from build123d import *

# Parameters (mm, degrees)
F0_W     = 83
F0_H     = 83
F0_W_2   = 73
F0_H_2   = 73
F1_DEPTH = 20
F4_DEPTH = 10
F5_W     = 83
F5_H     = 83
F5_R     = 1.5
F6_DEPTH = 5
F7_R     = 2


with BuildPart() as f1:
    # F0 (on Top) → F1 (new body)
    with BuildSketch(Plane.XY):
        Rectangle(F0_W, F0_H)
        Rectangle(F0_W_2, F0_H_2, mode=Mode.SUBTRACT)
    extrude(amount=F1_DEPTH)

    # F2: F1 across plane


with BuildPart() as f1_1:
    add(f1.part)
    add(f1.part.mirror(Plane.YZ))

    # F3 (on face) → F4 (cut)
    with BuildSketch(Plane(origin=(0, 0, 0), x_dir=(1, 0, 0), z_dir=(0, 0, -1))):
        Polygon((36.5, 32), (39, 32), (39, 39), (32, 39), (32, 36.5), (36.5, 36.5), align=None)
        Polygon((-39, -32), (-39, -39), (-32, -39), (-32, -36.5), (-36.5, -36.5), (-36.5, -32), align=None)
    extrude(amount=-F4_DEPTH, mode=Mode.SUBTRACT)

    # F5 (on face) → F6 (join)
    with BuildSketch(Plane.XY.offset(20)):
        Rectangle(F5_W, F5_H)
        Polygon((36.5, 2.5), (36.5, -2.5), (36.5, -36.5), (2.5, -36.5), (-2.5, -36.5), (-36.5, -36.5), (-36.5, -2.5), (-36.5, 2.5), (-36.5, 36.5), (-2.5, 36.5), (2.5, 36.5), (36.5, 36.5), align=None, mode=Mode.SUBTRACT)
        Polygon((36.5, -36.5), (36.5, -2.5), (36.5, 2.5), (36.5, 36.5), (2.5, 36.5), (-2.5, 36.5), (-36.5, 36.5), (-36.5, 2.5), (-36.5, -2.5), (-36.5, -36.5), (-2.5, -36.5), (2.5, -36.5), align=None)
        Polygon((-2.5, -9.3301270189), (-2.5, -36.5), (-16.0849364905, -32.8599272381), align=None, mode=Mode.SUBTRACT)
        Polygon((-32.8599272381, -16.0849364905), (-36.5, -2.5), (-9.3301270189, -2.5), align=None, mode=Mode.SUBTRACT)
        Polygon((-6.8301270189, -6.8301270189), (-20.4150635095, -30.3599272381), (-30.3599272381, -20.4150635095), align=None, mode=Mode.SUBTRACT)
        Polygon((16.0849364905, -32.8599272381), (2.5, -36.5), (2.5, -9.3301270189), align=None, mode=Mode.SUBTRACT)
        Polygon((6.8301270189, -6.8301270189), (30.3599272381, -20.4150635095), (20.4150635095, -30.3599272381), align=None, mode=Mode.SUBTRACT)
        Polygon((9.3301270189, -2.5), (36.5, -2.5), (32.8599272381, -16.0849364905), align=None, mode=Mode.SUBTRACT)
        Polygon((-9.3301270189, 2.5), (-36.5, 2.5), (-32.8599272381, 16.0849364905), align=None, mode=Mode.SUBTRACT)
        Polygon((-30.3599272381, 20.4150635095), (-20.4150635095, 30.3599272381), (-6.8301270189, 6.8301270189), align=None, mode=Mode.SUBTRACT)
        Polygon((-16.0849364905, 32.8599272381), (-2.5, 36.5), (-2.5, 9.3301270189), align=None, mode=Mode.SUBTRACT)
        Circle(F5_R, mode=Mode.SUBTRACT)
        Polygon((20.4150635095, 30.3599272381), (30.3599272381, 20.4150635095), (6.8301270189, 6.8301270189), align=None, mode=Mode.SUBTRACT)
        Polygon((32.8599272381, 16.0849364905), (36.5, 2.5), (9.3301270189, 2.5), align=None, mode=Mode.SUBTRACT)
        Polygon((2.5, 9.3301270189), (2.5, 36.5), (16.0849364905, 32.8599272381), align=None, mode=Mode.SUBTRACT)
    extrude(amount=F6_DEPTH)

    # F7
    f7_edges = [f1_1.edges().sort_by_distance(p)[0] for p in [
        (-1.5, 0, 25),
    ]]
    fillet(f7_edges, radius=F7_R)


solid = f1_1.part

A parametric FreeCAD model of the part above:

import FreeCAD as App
import Part
import Sketcher
from FreeCAD import Vector
Q = App.Units.Quantity


def edges_at(feature, points):
    """Names of the edges that pass closest to the given points."""
    edges = feature.Shape.Edges
    near = lambda p: min(range(len(edges)), key=lambda i: edges[i].distToShape(Part.Vertex(*p))[0])
    return sorted({f"Edge{near(p) + 1}" for p in points})

doc = App.newDocument("Part")
body = doc.addObject("PartDesign::Body", "Body")

# Sketch on XY plane
sketch1 = body.newObject("Sketcher::SketchObject", "Sketch")
sketch1.AttachmentSupport = (doc.getObject("XY_Plane"), [""])
sketch1.MapMode = "FlatFace"
sketch1.addGeometry([
    Part.LineSegment(Vector(-41.5, 41.5, 0), Vector(-41.5, -41.5, 0)),  # 0
    Part.LineSegment(Vector(-41.5, -41.5, 0), Vector(41.5, -41.5, 0)),  # 1
    Part.LineSegment(Vector(41.5, -41.5, 0), Vector(41.5, 41.5, 0)),  # 2
    Part.LineSegment(Vector(41.5, 41.5, 0), Vector(-41.5, 41.5, 0)),  # 3
    Part.LineSegment(Vector(36.5, -36.5, 0), Vector(-36.5, -36.5, 0)),  # 4
    Part.LineSegment(Vector(-36.5, -36.5, 0), Vector(-36.5, 36.5, 0)),  # 5
    Part.LineSegment(Vector(-36.5, 36.5, 0), Vector(36.5, 36.5, 0)),  # 6
    Part.LineSegment(Vector(36.5, 36.5, 0), Vector(36.5, -36.5, 0)),  # 7
], False)
sketch1.addConstraint([
    Sketcher.Constraint("Coincident", 0, 2, 1, 1),
    Sketcher.Constraint("Coincident", 1, 2, 2, 1),
    Sketcher.Constraint("Coincident", 2, 2, 3, 1),
    Sketcher.Constraint("Coincident", 3, 2, 0, 1),
    Sketcher.Constraint("Coincident", 4, 2, 5, 1),
    Sketcher.Constraint("Coincident", 5, 2, 6, 1),
    Sketcher.Constraint("Coincident", 6, 2, 7, 1),
    Sketcher.Constraint("Coincident", 7, 2, 4, 1),
    Sketcher.Constraint("Vertical", 0),
    Sketcher.Constraint("Horizontal", 1),
    Sketcher.Constraint("Vertical", 2),
    Sketcher.Constraint("Horizontal", 3),
    Sketcher.Constraint("Horizontal", 4),
    Sketcher.Constraint("Vertical", 5),
    Sketcher.Constraint("Horizontal", 6),
    Sketcher.Constraint("Vertical", 7),
    Sketcher.Constraint("Symmetric", 0, 2, 2, 2, -1, 1),
    Sketcher.Constraint("Symmetric", 4, 2, 6, 2, -1, 1),
    Sketcher.Constraint("Equal", 3, 0),
    Sketcher.Constraint("Equal", 6, 5),
    Sketcher.Constraint("DistanceX", 1, 1, 1, 2, Q("83 mm")),
    Sketcher.Constraint("DistanceX", 4, 2, 4, 1, Q("73 mm")),
])
pad1 = body.newObject("PartDesign::Pad", "Pad")
pad1.Profile = sketch1
pad1.Length = 20
body2 = doc.addObject("PartDesign::Body", "Body001")
doc.recompute()

body2.BaseFeature = body
doc.recompute()

mirroring = doc.addObject("Part::Mirroring", "Mirroring")
mirroring.Source = body
mirroring.Base = Vector(0, 0, 0)
mirroring.Normal = Vector(1, 0, 0)
body3 = doc.addObject("PartDesign::Body", "Body002")
body3.BaseFeature = mirroring
boolean = body2.newObject("PartDesign::Boolean", "Boolean")
boolean.Type = "Fuse"
boolean.addObjects([body3])
doc.recompute()

# Sketch on XY plane
sketch2 = body2.newObject("Sketcher::SketchObject", "Sketch001")
sketch2.AttachmentSupport = (doc.getObject("XY_Plane001"), [""])
sketch2.MapMode = "FlatFace"
sketch2.addGeometry([
    Part.LineSegment(Vector(36.5, -32, 0), Vector(39, -32, 0)),  # 0
    Part.LineSegment(Vector(39, -32, 0), Vector(39, -39, 0)),  # 1
    Part.LineSegment(Vector(39, -39, 0), Vector(32, -39, 0)),  # 2
    Part.LineSegment(Vector(32, -39, 0), Vector(32, -36.5, 0)),  # 3
    Part.LineSegment(Vector(32, -36.5, 0), Vector(36.5, -36.5, 0)),  # 4
    Part.LineSegment(Vector(36.5, -36.5, 0), Vector(36.5, -32, 0)),  # 5
    Part.LineSegment(Vector(-39, 32, 0), Vector(-39, 39, 0)),  # 6
    Part.LineSegment(Vector(-39, 39, 0), Vector(-32, 39, 0)),  # 7
    Part.LineSegment(Vector(-32, 39, 0), Vector(-32, 36.5, 0)),  # 8
    Part.LineSegment(Vector(-32, 36.5, 0), Vector(-36.5, 36.5, 0)),  # 9
    Part.LineSegment(Vector(-36.5, 36.5, 0), Vector(-36.5, 32, 0)),  # 10
    Part.LineSegment(Vector(-36.5, 32, 0), Vector(-39, 32, 0)),  # 11
], False)
sketch2.addConstraint([
    Sketcher.Constraint("Coincident", 0, 2, 1, 1),
    Sketcher.Constraint("Coincident", 1, 2, 2, 1),
    Sketcher.Constraint("Coincident", 2, 2, 3, 1),
    Sketcher.Constraint("Coincident", 3, 2, 4, 1),
    Sketcher.Constraint("Coincident", 4, 2, 5, 1),
    Sketcher.Constraint("Coincident", 5, 2, 0, 1),
    Sketcher.Constraint("Coincident", 6, 2, 7, 1),
    Sketcher.Constraint("Coincident", 7, 2, 8, 1),
    Sketcher.Constraint("Coincident", 8, 2, 9, 1),
    Sketcher.Constraint("Coincident", 9, 2, 10, 1),
    Sketcher.Constraint("Coincident", 10, 2, 11, 1),
    Sketcher.Constraint("Coincident", 11, 2, 6, 1),
    Sketcher.Constraint("Horizontal", 0),
    Sketcher.Constraint("Vertical", 1),
    Sketcher.Constraint("Horizontal", 2),
    Sketcher.Constraint("Vertical", 3),
    Sketcher.Constraint("Horizontal", 4),
    Sketcher.Constraint("Vertical", 5),
    Sketcher.Constraint("Vertical", 6),
    Sketcher.Constraint("Horizontal", 7),
    Sketcher.Constraint("Vertical", 8),
    Sketcher.Constraint("Horizontal", 9),
    Sketcher.Constraint("Vertical", 10),
    Sketcher.Constraint("Horizontal", 11),
    Sketcher.Constraint("Symmetric", 1, 2, 6, 2, -1, 1),
    Sketcher.Constraint("Symmetric", 3, 2, 8, 2, -1, 1),
    Sketcher.Constraint("Symmetric", 5, 2, 10, 2, -1, 1),
    Sketcher.Constraint("Equal", 7, 1),
    Sketcher.Constraint("Equal", 11, 3),
    Sketcher.Constraint("DistanceX", 2, 2, 2, 1, Q("7 mm")),
    Sketcher.Constraint("DistanceX", 0, 1, 0, 2, Q("2.5 mm")),
    Sketcher.Constraint("DistanceX", -1, 1, 0, 2, Q("39 mm")),
    Sketcher.Constraint("DistanceY", 0, 2, -1, 1, Q("32 mm")),
])
pocket1 = body2.newObject("PartDesign::Pocket", "Pocket")
pocket1.Profile = sketch2
pocket1.Length = 10
pocket1.Reversed = True

# Sketch on XY plane
sketch3 = body2.newObject("Sketcher::SketchObject", "Sketch002")
sketch3.AttachmentSupport = (doc.getObject("XY_Plane001"), [""])
sketch3.MapMode = "FlatFace"
sketch3.AttachmentOffset = App.Placement(Vector(0, 0, 20), App.Rotation())
sketch3.addGeometry([
    Part.LineSegment(Vector(-41.5, 41.5, 0), Vector(-41.5, -41.5, 0)),  # 0
    Part.LineSegment(Vector(-41.5, -41.5, 0), Vector(41.5, -41.5, 0)),  # 1
    Part.LineSegment(Vector(41.5, -41.5, 0), Vector(41.5, 41.5, 0)),  # 2
    Part.LineSegment(Vector(41.5, 41.5, 0), Vector(-41.5, 41.5, 0)),  # 3
    Part.LineSegment(Vector(-30.359927, -20.415064, 0), Vector(-6.830127, -6.830127, 0)),  # 4
    Part.LineSegment(Vector(-6.830127, -6.830127, 0), Vector(-20.415064, -30.359927, 0)),  # 5
    Part.LineSegment(Vector(-20.415064, -30.359927, 0), Vector(-30.359927, -20.415064, 0)),  # 6
    Part.LineSegment(Vector(-16.084936, -32.859927, 0), Vector(-2.5, -9.330127, 0)),  # 7
    Part.LineSegment(Vector(-2.5, -9.330127, 0), Vector(-2.5, -36.5, 0)),  # 8
    Part.LineSegment(Vector(-2.5, -36.5, 0), Vector(-16.084936, -32.859927, 0)),  # 9
    Part.LineSegment(Vector(-9.330127, -2.5, 0), Vector(-32.859927, -16.084936, 0)),  # 10
    Part.LineSegment(Vector(-32.859927, -16.084936, 0), Vector(-36.5, -2.5, 0)),  # 11
    Part.LineSegment(Vector(-36.5, -2.5, 0), Vector(-9.330127, -2.5, 0)),  # 12
    Part.LineSegment(Vector(2.5, -9.330127, 0), Vector(16.084936, -32.859927, 0)),  # 13
    Part.LineSegment(Vector(16.084936, -32.859927, 0), Vector(2.5, -36.5, 0)),  # 14
    Part.LineSegment(Vector(2.5, -36.5, 0), Vector(2.5, -9.330127, 0)),  # 15
    Part.LineSegment(Vector(20.415064, -30.359927, 0), Vector(6.830127, -6.830127, 0)),  # 16
    Part.LineSegment(Vector(6.830127, -6.830127, 0), Vector(30.359927, -20.415064, 0)),  # 17
    Part.LineSegment(Vector(30.359927, -20.415064, 0), Vector(20.415064, -30.359927, 0)),  # 18
    Part.LineSegment(Vector(32.859927, -16.084936, 0), Vector(9.330127, -2.5, 0)),  # 19
    Part.LineSegment(Vector(9.330127, -2.5, 0), Vector(36.5, -2.5, 0)),  # 20
    Part.LineSegment(Vector(36.5, -2.5, 0), Vector(32.859927, -16.084936, 0)),  # 21
    Part.LineSegment(Vector(-32.859927, 16.084936, 0), Vector(-9.330127, 2.5, 0)),  # 22
    Part.LineSegment(Vector(-9.330127, 2.5, 0), Vector(-36.5, 2.5, 0)),  # 23
    Part.LineSegment(Vector(-36.5, 2.5, 0), Vector(-32.859927, 16.084936, 0)),  # 24
    Part.LineSegment(Vector(-6.830127, 6.830127, 0), Vector(-30.359927, 20.415064, 0)),  # 25
    Part.LineSegment(Vector(-30.359927, 20.415064, 0), Vector(-20.415064, 30.359927, 0)),  # 26
    Part.LineSegment(Vector(-20.415064, 30.359927, 0), Vector(-6.830127, 6.830127, 0)),  # 27
    Part.LineSegment(Vector(-2.5, 9.330127, 0), Vector(-16.084936, 32.859927, 0)),  # 28
    Part.LineSegment(Vector(-16.084936, 32.859927, 0), Vector(-2.5, 36.5, 0)),  # 29
    Part.LineSegment(Vector(-2.5, 36.5, 0), Vector(-2.5, 9.330127, 0)),  # 30
    Part.Circle(Vector(0, 0, 0), Vector(0, 0, 1), 1.5),  # 31
    Part.LineSegment(Vector(9.330127, 2.5, 0), Vector(32.859927, 16.084936, 0)),  # 32
    Part.LineSegment(Vector(32.859927, 16.084936, 0), Vector(36.5, 2.5, 0)),  # 33
    Part.LineSegment(Vector(36.5, 2.5, 0), Vector(9.330127, 2.5, 0)),  # 34
    Part.LineSegment(Vector(16.084936, 32.859927, 0), Vector(2.5, 9.330127, 0)),  # 35
    Part.LineSegment(Vector(2.5, 9.330127, 0), Vector(2.5, 36.5, 0)),  # 36
    Part.LineSegment(Vector(2.5, 36.5, 0), Vector(16.084936, 32.859927, 0)),  # 37
    Part.LineSegment(Vector(6.830127, 6.830127, 0), Vector(20.415064, 30.359927, 0)),  # 38
    Part.LineSegment(Vector(20.415064, 30.359927, 0), Vector(30.359927, 20.415064, 0)),  # 39
    Part.LineSegment(Vector(30.359927, 20.415064, 0), Vector(6.830127, 6.830127, 0)),  # 40
], False)
sketch3.addConstraint([
    Sketcher.Constraint("Coincident", 0, 2, 1, 1),
    Sketcher.Constraint("Coincident", 1, 2, 2, 1),
    Sketcher.Constraint("Coincident", 2, 2, 3, 1),
    Sketcher.Constraint("Coincident", 3, 2, 0, 1),
    Sketcher.Constraint("Coincident", 4, 2, 5, 1),
    Sketcher.Constraint("Coincident", 5, 2, 6, 1),
    Sketcher.Constraint("Coincident", 6, 2, 4, 1),
    Sketcher.Constraint("Coincident", 7, 2, 8, 1),
    Sketcher.Constraint("Coincident", 8, 2, 9, 1),
    Sketcher.Constraint("Coincident", 9, 2, 7, 1),
    Sketcher.Constraint("Coincident", 10, 2, 11, 1),
    Sketcher.Constraint("Coincident", 11, 2, 12, 1),
    Sketcher.Constraint("Coincident", 12, 2, 10, 1),
    Sketcher.Constraint("Coincident", 13, 2, 14, 1),
    Sketcher.Constraint("Coincident", 14, 2, 15, 1),
    Sketcher.Constraint("Coincident", 15, 2, 13, 1),
    Sketcher.Constraint("Coincident", 16, 2, 17, 1),
    Sketcher.Constraint("Coincident", 17, 2, 18, 1),
    Sketcher.Constraint("Coincident", 18, 2, 16, 1),
    Sketcher.Constraint("Coincident", 19, 2, 20, 1),
    Sketcher.Constraint("Coincident", 20, 2, 21, 1),
    Sketcher.Constraint("Coincident", 21, 2, 19, 1),
    Sketcher.Constraint("Coincident", 22, 2, 23, 1),
    Sketcher.Constraint("Coincident", 23, 2, 24, 1),
    Sketcher.Constraint("Coincident", 24, 2, 22, 1),
    Sketcher.Constraint("Coincident", 25, 2, 26, 1),
    Sketcher.Constraint("Coincident", 26, 2, 27, 1),
    Sketcher.Constraint("Coincident", 27, 2, 25, 1),
    Sketcher.Constraint("Coincident", 28, 2, 29, 1),
    Sketcher.Constraint("Coincident", 29, 2, 30, 1),
    Sketcher.Constraint("Coincident", 30, 2, 28, 1),
    Sketcher.Constraint("Coincident", 32, 2, 33, 1),
    Sketcher.Constraint("Coincident", 33, 2, 34, 1),
    Sketcher.Constraint("Coincident", 34, 2, 32, 1),
    Sketcher.Constraint("Coincident", 35, 2, 36, 1),
    Sketcher.Constraint("Coincident", 36, 2, 37, 1),
    Sketcher.Constraint("Coincident", 37, 2, 35, 1),
    Sketcher.Constraint("Coincident", 38, 2, 39, 1),
    Sketcher.Constraint("Coincident", 39, 2, 40, 1),
    Sketcher.Constraint("Coincident", 40, 2, 38, 1),
    Sketcher.Constraint("Vertical", 0),
    Sketcher.Constraint("Horizontal", 1),
    Sketcher.Constraint("Vertical", 2),
    Sketcher.Constraint("Horizontal", 3),
    Sketcher.Constraint("Vertical", 8),
    Sketcher.Constraint("Horizontal", 12),
    Sketcher.Constraint("Vertical", 15),
    Sketcher.Constraint("Horizontal", 20),
    Sketcher.Constraint("Horizontal", 23),
    Sketcher.Constraint("Vertical", 30),
    Sketcher.Constraint("Horizontal", 34),
    Sketcher.Constraint("Vertical", 36),
    Sketcher.Constraint("Coincident", 31, 3, -1, 1),
    Sketcher.Constraint("Symmetric", 0, 2, 2, 2, -1, 1),
    Sketcher.Constraint("Symmetric", 19, 2, 22, 2, -1, 1),
    Sketcher.Constraint("Symmetric", 21, 2, 24, 2, -1, 1),
    Sketcher.Constraint("Symmetric", 17, 2, 25, 2, -1, 1),
    Sketcher.Constraint("Symmetric", 18, 2, 26, 2, -1, 1),
    Sketcher.Constraint("Symmetric", 16, 2, 27, 2, -1, 1),
    Sketcher.Constraint("Symmetric", 13, 2, 28, 2, -1, 1),
    Sketcher.Constraint("Symmetric", 14, 2, 29, 2, -1, 1),
    Sketcher.Constraint("Symmetric", 10, 2, 32, 2, -1, 1),
    Sketcher.Constraint("Symmetric", 11, 2, 33, 2, -1, 1),
    Sketcher.Constraint("Symmetric", 7, 2, 35, 2, -1, 1),
    Sketcher.Constraint("Symmetric", 9, 2, 37, 2, -1, 1),
    Sketcher.Constraint("Symmetric", 5, 2, 38, 2, -1, 1),
    Sketcher.Constraint("Symmetric", 6, 2, 39, 2, -1, 1),
    Sketcher.Constraint("Symmetric", 4, 2, 40, 2, -1, 1),
    Sketcher.Constraint("Symmetric", 9, 2, 13, 2, -2),
    Sketcher.Constraint("Symmetric", 8, 2, 14, 2, -2),
    Sketcher.Constraint("Symmetric", 4, 2, 16, 2, -2),
    Sketcher.Constraint("Symmetric", 6, 2, 17, 2, -2),
    Sketcher.Constraint("Symmetric", 5, 2, 18, 2, -2),
    Sketcher.Constraint("Symmetric", 12, 2, 19, 2, -2),
    Sketcher.Constraint("Symmetric", 10, 2, 21, 2, -2),
    Sketcher.Constraint("Parallel", 5, 7),
    Sketcher.Constraint("Parallel", 4, 10),
    Sketcher.Constraint("Perpendicular", 10, 13),
    Sketcher.Constraint("Perpendicular", 11, 14),
    Sketcher.Constraint("Parallel", 13, 16),
    Sketcher.Constraint("Perpendicular", 6, 18),
    Sketcher.Constraint("Perpendicular", 9, 21),
    Sketcher.Constraint("Parallel", 21, 24),
    Sketcher.Constraint("Parallel", 27, 28),
    Sketcher.Constraint("Perpendicular", 28, 32),
    Sketcher.Constraint("Perpendicular", 24, 37),
    Sketcher.Constraint("Equal", 3, 0),
    Sketcher.Constraint("Equal", 34, 8),
    Sketcher.Constraint("Equal", 5, 7),
    Sketcher.Constraint("Equal", 6, 9),
    Sketcher.Constraint("Diameter", 31, Q("3 mm")),
    Sketcher.Constraint("DistanceX", 1, 1, 1, 2, Q("83 mm")),
    Sketcher.Constraint("Angle", 4, Q("30 deg")),
    Sketcher.Constraint("DistanceX", 0, 2, 7, 2, Q("39 mm")),
    Sketcher.Constraint("DistanceX", 11, 2, 7, 2, Q("34 mm")),
    Sketcher.Constraint("DistanceY", 12, 2, 22, 2, Q("5 mm")),
    Sketcher.Constraint("DistanceY", 22, 2, 29, 2, Q("34 mm")),
    Sketcher.Constraint("DistanceY", 7, 2, 4, 2, Q("2.5 mm")),
    Sketcher.Constraint("DistanceX", 10, 2, 6, 2, Q("2.5 mm")),
    Sketcher.Constraint("DistanceY", 5, 2, 4, 2, Q("23.5298 mm")),
])
pad2 = body2.newObject("PartDesign::Pad", "Pad001")
pad2.Profile = sketch3
pad2.Length = 5
doc.recompute()

fillet = body2.newObject("PartDesign::Fillet", "Fillet")
fillet.Base = (pad2, edges_at(pad2, [(-1.5, 0, 25)]))
fillet.Radius = 2
mirroring.Visibility = False

doc.recompute()
